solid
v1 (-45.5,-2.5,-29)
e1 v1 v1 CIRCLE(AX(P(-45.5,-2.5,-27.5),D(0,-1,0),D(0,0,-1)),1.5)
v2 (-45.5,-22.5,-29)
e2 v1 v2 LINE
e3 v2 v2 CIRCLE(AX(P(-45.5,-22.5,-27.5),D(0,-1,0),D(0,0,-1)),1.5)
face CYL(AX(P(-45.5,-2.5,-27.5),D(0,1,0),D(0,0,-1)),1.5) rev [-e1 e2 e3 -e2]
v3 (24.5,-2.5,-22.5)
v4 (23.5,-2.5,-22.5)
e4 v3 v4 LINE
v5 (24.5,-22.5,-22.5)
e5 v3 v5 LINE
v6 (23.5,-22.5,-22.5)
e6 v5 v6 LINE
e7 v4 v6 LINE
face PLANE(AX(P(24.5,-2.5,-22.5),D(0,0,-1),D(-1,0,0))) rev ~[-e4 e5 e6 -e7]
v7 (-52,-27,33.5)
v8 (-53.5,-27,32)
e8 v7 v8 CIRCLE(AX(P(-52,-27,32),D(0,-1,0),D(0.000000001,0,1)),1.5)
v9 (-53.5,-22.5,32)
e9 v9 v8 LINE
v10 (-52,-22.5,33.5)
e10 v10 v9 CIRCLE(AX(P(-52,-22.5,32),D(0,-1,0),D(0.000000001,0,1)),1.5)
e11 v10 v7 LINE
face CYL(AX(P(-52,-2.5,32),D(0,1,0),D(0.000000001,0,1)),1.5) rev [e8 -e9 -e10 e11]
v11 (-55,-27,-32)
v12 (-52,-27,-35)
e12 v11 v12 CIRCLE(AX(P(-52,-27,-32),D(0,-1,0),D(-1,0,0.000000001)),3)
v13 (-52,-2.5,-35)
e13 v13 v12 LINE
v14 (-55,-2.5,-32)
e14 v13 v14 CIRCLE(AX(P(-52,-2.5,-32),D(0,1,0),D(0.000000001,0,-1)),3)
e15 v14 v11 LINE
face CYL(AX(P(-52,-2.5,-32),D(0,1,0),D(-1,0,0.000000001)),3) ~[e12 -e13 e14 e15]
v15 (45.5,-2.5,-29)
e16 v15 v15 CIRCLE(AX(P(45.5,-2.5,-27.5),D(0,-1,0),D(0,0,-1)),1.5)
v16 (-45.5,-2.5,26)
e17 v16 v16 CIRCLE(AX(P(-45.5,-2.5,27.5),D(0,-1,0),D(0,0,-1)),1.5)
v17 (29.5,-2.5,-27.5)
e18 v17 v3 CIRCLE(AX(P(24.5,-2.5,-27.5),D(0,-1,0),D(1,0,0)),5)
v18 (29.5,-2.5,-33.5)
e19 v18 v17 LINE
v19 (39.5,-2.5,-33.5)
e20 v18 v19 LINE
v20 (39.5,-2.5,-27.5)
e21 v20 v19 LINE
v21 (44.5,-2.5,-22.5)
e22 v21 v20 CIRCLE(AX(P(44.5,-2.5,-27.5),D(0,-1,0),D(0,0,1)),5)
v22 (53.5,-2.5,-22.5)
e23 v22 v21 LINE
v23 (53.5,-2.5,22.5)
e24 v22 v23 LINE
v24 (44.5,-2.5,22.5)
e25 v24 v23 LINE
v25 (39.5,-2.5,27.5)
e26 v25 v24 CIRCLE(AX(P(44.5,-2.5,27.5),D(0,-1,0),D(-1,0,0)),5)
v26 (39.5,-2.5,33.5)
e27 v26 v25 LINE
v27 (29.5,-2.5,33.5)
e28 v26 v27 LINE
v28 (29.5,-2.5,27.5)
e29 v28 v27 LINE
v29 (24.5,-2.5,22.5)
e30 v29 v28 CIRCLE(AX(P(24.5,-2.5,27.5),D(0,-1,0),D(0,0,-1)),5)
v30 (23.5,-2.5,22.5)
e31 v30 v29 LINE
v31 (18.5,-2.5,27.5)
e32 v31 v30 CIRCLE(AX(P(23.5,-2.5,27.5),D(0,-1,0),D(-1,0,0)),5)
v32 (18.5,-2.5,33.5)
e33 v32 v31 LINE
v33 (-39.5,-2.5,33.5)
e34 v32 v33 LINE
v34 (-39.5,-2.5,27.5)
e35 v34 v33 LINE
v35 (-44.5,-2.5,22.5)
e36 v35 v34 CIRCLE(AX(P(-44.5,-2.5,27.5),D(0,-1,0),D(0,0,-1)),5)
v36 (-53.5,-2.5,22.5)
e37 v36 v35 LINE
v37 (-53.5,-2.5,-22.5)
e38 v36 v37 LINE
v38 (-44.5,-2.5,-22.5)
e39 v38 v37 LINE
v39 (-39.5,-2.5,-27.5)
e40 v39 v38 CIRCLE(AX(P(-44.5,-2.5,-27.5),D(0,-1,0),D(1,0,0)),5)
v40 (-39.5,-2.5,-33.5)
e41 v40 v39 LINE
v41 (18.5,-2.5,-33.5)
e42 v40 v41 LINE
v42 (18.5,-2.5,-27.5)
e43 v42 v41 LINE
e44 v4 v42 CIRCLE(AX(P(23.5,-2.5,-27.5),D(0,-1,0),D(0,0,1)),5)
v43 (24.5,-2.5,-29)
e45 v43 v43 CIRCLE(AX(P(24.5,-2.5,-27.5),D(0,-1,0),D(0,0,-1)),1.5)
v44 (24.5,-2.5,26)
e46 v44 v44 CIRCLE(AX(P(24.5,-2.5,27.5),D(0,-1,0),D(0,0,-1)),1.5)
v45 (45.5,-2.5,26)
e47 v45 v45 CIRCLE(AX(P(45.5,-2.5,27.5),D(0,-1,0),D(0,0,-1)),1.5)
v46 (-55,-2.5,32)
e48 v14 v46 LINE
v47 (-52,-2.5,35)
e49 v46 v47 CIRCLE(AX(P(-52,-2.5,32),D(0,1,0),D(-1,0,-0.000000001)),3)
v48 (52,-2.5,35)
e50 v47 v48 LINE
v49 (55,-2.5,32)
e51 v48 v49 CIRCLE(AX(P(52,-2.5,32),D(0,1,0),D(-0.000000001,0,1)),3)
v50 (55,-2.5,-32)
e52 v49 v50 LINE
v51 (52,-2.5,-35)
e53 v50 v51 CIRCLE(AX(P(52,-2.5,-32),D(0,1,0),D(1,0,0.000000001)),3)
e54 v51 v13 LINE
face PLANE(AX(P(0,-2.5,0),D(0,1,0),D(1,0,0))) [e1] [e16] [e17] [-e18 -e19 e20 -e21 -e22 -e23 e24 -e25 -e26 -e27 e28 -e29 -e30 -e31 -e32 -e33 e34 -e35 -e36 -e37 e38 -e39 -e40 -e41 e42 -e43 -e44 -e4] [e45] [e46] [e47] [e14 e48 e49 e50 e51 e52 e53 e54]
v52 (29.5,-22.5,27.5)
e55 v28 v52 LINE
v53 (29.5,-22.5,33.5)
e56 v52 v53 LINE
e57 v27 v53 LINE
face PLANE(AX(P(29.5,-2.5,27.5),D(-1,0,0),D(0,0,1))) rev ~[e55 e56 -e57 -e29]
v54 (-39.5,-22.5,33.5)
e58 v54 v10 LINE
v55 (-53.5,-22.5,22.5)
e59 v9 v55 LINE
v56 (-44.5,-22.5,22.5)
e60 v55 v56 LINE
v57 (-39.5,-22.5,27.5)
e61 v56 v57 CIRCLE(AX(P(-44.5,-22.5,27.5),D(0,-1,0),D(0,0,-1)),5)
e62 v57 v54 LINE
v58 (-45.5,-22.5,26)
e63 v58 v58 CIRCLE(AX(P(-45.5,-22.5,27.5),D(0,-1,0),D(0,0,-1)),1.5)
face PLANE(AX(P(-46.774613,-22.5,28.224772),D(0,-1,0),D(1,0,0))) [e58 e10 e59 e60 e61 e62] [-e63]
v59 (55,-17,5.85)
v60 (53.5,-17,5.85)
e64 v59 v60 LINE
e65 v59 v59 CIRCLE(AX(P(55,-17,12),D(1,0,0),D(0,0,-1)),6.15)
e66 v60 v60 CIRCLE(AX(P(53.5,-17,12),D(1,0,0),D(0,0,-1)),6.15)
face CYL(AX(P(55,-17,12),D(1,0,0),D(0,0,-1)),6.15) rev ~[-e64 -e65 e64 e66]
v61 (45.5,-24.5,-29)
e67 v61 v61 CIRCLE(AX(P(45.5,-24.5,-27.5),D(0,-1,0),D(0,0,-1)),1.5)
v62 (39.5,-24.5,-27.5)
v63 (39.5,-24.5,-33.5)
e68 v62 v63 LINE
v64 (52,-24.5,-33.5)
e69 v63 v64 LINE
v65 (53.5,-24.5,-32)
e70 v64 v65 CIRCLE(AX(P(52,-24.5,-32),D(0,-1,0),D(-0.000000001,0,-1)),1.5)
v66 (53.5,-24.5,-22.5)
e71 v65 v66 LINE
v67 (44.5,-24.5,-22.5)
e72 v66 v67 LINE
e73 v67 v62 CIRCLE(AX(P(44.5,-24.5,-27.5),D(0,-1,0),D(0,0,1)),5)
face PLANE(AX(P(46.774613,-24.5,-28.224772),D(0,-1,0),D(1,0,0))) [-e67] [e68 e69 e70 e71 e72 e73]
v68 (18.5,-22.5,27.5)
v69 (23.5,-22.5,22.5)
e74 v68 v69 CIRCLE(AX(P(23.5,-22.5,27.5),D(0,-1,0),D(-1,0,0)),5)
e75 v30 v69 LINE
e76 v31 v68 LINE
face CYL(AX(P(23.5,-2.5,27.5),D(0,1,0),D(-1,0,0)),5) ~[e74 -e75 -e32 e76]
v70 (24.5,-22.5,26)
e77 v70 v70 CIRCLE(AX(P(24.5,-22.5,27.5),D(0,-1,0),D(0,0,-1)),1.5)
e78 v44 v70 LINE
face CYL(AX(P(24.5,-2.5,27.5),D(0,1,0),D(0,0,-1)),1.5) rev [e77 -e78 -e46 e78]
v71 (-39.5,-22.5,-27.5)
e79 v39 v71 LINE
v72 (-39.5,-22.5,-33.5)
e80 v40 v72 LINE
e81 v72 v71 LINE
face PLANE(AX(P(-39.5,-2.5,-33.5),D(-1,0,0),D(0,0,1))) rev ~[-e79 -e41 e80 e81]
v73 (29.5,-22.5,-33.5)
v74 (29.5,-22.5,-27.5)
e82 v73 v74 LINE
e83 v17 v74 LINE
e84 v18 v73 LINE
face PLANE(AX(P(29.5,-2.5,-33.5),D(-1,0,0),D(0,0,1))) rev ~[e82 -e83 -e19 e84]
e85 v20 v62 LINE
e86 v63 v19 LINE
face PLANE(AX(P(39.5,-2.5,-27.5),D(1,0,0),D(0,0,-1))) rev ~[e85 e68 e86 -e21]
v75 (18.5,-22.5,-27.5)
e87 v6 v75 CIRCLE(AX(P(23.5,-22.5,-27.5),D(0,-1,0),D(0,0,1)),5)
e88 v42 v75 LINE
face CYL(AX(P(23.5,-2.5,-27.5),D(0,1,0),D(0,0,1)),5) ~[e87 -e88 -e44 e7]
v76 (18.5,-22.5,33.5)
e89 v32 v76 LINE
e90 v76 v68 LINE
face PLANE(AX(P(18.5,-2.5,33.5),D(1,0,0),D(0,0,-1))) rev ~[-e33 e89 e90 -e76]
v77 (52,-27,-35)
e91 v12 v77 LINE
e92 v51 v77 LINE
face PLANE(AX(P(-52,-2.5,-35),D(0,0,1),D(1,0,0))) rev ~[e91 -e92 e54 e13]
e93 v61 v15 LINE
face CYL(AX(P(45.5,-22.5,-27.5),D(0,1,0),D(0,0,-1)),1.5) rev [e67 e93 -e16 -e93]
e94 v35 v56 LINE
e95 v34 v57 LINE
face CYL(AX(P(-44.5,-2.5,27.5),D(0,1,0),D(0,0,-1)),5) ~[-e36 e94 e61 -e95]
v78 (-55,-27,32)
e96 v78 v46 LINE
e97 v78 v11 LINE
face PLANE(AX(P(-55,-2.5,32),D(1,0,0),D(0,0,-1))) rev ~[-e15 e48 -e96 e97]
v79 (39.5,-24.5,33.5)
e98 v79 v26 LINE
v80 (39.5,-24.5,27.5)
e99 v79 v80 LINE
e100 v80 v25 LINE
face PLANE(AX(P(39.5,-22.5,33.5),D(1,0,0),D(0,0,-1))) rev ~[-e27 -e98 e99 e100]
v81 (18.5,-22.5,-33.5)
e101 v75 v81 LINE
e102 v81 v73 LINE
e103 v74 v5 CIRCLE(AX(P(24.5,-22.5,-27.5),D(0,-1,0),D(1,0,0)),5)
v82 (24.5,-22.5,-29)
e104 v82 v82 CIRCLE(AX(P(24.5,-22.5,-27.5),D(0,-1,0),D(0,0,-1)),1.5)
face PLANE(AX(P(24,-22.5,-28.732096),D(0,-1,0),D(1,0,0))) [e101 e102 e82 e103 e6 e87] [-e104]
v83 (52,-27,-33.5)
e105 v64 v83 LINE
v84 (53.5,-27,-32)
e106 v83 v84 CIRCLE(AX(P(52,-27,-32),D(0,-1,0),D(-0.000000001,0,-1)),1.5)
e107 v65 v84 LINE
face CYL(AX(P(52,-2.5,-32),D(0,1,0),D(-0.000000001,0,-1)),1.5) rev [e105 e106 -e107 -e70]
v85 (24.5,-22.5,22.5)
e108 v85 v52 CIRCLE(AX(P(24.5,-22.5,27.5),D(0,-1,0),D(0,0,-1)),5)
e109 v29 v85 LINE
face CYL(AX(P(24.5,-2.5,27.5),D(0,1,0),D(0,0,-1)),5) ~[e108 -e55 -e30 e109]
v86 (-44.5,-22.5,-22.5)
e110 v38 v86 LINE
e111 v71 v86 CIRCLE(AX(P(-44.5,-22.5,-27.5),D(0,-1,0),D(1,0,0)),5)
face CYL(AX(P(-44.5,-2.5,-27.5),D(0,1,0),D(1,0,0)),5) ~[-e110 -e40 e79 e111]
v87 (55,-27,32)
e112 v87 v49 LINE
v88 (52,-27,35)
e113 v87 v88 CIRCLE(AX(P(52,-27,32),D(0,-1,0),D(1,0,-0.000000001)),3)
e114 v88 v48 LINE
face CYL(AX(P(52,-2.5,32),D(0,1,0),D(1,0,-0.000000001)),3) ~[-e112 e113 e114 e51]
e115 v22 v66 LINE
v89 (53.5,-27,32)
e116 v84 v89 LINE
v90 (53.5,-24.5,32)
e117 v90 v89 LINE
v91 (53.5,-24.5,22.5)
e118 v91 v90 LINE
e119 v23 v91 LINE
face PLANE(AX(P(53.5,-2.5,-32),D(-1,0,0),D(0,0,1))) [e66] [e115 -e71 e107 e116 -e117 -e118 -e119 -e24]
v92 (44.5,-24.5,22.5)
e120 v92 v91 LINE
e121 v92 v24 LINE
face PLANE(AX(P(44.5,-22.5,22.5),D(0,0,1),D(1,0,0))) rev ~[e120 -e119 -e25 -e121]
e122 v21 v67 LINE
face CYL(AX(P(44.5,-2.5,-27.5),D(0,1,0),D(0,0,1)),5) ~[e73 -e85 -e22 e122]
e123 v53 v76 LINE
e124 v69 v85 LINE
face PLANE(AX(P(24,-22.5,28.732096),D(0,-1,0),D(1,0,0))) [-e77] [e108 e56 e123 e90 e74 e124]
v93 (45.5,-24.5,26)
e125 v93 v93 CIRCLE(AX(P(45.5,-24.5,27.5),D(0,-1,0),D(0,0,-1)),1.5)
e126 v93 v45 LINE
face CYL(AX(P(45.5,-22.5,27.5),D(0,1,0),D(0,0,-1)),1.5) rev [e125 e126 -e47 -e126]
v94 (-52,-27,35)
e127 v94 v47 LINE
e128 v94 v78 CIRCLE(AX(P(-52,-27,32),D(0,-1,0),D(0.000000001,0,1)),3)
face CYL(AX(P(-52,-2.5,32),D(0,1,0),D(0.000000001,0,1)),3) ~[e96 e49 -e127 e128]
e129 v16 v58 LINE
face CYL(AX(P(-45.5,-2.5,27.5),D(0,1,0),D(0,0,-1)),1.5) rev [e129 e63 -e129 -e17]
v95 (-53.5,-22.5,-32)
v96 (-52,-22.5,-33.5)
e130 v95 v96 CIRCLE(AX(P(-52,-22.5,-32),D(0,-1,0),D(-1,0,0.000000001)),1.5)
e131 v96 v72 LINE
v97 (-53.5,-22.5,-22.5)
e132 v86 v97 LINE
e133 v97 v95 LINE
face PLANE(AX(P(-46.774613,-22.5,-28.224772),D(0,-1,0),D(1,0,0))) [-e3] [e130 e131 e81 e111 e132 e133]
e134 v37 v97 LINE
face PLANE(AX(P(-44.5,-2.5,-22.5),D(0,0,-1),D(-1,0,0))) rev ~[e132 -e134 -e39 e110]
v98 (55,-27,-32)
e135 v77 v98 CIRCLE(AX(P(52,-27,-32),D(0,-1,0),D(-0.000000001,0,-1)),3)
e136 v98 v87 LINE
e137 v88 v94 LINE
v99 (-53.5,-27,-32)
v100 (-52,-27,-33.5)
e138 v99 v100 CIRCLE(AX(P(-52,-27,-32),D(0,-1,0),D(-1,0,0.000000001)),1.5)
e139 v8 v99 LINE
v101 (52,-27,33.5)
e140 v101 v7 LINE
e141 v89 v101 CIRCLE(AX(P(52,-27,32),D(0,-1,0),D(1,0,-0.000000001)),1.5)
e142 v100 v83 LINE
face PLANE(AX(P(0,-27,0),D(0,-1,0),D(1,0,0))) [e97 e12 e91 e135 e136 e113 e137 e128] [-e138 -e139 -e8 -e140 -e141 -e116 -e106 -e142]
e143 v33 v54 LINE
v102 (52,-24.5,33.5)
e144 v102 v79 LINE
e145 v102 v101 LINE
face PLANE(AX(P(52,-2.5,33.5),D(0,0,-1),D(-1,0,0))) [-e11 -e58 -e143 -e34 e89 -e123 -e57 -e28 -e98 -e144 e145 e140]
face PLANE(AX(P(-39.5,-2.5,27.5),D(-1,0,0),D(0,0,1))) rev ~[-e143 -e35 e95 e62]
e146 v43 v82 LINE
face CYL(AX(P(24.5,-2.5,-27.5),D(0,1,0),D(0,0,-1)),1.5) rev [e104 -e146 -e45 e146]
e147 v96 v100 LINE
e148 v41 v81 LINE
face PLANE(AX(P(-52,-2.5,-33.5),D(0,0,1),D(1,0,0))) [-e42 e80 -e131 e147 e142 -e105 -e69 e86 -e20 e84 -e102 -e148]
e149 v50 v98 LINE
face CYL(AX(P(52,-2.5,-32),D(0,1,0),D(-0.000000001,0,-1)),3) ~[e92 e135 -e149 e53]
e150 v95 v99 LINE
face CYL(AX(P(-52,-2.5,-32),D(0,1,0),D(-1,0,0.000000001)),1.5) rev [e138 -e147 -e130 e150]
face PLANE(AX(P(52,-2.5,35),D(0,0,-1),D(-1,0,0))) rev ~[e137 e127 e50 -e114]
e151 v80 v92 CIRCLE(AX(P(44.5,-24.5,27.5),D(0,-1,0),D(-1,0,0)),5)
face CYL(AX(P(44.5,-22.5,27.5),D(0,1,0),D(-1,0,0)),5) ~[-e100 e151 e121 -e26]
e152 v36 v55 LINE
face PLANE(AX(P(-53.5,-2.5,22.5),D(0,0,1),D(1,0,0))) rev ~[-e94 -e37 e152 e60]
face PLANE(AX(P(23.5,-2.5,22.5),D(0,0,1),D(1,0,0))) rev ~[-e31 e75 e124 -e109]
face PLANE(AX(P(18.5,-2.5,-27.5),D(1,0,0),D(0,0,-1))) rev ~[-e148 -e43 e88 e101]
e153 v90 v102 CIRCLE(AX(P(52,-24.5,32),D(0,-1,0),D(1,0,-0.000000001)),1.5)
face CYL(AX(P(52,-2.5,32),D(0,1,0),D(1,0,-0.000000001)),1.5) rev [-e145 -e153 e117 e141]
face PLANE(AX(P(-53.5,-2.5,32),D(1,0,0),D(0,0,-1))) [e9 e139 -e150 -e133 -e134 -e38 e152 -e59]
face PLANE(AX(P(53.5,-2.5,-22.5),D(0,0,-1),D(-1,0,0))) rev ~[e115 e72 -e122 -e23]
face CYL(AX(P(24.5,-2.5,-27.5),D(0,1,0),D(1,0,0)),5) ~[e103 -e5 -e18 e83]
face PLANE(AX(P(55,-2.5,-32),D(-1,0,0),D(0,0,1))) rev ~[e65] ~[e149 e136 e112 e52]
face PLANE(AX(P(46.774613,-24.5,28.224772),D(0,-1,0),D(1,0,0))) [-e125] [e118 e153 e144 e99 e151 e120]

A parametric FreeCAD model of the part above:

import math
import FreeCAD as App
import Part
import Sketcher
from FreeCAD import Vector

doc = App.newDocument("Part")
body = doc.addObject("PartDesign::Body", "Body")

# Sketch on XZ plane
sketch1 = body.newObject("Sketcher::SketchObject", "Sketch")
sketch1.AttachmentSupport = (doc.getObject("XZ_Plane"), [""])
sketch1.MapMode = "FlatFace"
sketch1.addGeometry([
    Part.LineSegment(Vector(-52, 35, 0), Vector(52, 35, 0)),  # 0
    Part.ArcOfCircle(Part.Circle(Vector(52, 32, 0), Vector(0, 0, 1), 3), math.radians(0), math.radians(90)),  # 1
    Part.LineSegment(Vector(55, 32, 0), Vector(55, -32, 0)),  # 2
    Part.ArcOfCircle(Part.Circle(Vector(52, -32, 0), Vector(0, 0, 1), 3), math.radians(-90), math.radians(0)),  # 3
    Part.LineSegment(Vector(52, -35, 0), Vector(-52, -35, 0)),  # 4
    Part.ArcOfCircle(Part.Circle(Vector(-52, -32, 0), Vector(0, 0, 1), 3), math.radians(180), math.radians(270)),  # 5
    Part.LineSegment(Vector(-55, -32, 0), Vector(-55, 32, 0)),  # 6
    Part.ArcOfCircle(Part.Circle(Vector(-52, 32, 0), Vector(0, 0, 1), 3), math.radians(90), math.radians(180)),  # 7
], False)
sketch1.addConstraint([
    Sketcher.Constraint("Tangent", 0, 2, 1, 2),
    Sketcher.Constraint("Tangent", 1, 1, 2, 1),
    Sketcher.Constraint("Tangent", 2, 2, 3, 2),
    Sketcher.Constraint("Tangent", 3, 1, 4, 1),
    Sketcher.Constraint("Tangent", 4, 2, 5, 2),
    Sketcher.Constraint("Tangent", 5, 1, 6, 1),
    Sketcher.Constraint("Tangent", 6, 2, 7, 2),
    Sketcher.Constraint("Tangent", 7, 1, 0, 1),
    Sketcher.Constraint("Horizontal", 0),
    Sketcher.Constraint("Vertical", 2),
    Sketcher.Constraint("Horizontal", 4),
    Sketcher.Constraint("Vertical", 6),
    Sketcher.Constraint("Equal", 1, 3),
    Sketcher.Constraint("Equal", 3, 5),
    Sketcher.Constraint("Equal", 5, 7),
    Sketcher.Constraint("Symmetric", 1, 3, 5, 3, -1, 1),
    Sketcher.Constraint("Radius", 1, 3.0),
    Sketcher.Constraint("DistanceX", 0, 1, 0, 2, 104.0),
    Sketcher.Constraint("DistanceY", 2, 2, 2, 1, 64.0),
])
pad1 = body.newObject("PartDesign::Pad", "Pad")
pad1.Profile = sketch1
pad1.Length = 2.5

# Sketch on XZ plane
sketch2 = body.newObject("Sketcher::SketchObject", "Sketch001")
sketch2.AttachmentSupport = (doc.getObject("XZ_Plane"), [""])
sketch2.MapMode = "FlatFace"
sketch2.AttachmentOffset = App.Placement(Vector(0, 0, 2.5), App.Rotation())
sketch2.addGeometry([
    Part.LineSegment(Vector(-55, 32, 0), Vector(-55, -32, 0)),  # 0
    Part.ArcOfCircle(Part.Circle(Vector(-52, -32, 0), Vector(0, 0, 1), 3), math.radians(180), math.radians(270)),  # 1
    Part.LineSegment(Vector(-52, -35, 0), Vector(52, -35, 0)),  # 2
    Part.ArcOfCircle(Part.Circle(Vector(52, -32, 0), Vector(0, 0, 1), 3), math.radians(-90), math.radians(0)),  # 3
    Part.LineSegment(Vector(55, -32, 0), Vector(55, 32, 0)),  # 4
    Part.ArcOfCircle(Part.Circle(Vector(52, 32, 0), Vector(0, 0, 1), 3), math.radians(0), math.radians(90)),  # 5
    Part.LineSegment(Vector(52, 35, 0), Vector(-52, 35, 0)),  # 6
    Part.ArcOfCircle(Part.Circle(Vector(-52, 32, 0), Vector(0, 0, 1), 3), math.radians(90), math.radians(180)),  # 7
    Part.LineSegment(Vector(-53.5, -32, 0), Vector(-53.5, 32, 0)),  # 8
    Part.ArcOfCircle(Part.Circle(Vector(-52, 32, 0), Vector(0, 0, 1), 1.5), math.radians(90), math.radians(180)),  # 9
    Part.LineSegment(Vector(-52, 33.5, 0), Vector(52, 33.5, 0)),  # 10
    Part.ArcOfCircle(Part.Circle(Vector(52, 32, 0), Vector(0, 0, 1), 1.5), math.radians(0), math.radians(90)),  # 11
    Part.LineSegment(Vector(53.5, 32, 0), Vector(53.5, -32, 0)),  # 12
    Part.ArcOfCircle(Part.Circle(Vector(52, -32, 0), Vector(0, 0, 1), 1.5), math.radians(-90), math.radians(0)),  # 13
    Part.LineSegment(Vector(52, -33.5, 0), Vector(-52, -33.5, 0)),  # 14
    Part.ArcOfCircle(Part.Circle(Vector(-52, -32, 0), Vector(0, 0, 1), 1.5), math.radians(180), math.radians(270)),  # 15
], False)
sketch2.addConstraint([
    Sketcher.Constraint("Tangent", 0, 2, 1, 1),
    Sketcher.Constraint("Tangent", 1, 2, 2, 1),
    Sketcher.Constraint("Tangent", 2, 2, 3, 1),
    Sketcher.Constraint("Tangent", 3, 2, 4, 1),
    Sketcher.Constraint("Tangent", 4, 2, 5, 1),
    Sketcher.Constraint("Tangent", 5, 2, 6, 1),
    Sketcher.Constraint("Tangent", 6, 2, 7, 1),
    Sketcher.Constraint("Tangent", 7, 2, 0, 1),
    Sketcher.Constraint("Tangent", 8, 2, 9, 2),
    Sketcher.Constraint("Tangent", 9, 1, 10, 1),
    Sketcher.Constraint("Tangent", 10, 2, 11, 2),
    Sketcher.Constraint("Tangent", 11, 1, 12, 1),
    Sketcher.Constraint("Tangent", 12, 2, 13, 2),
    Sketcher.Constraint("Tangent", 13, 1, 14, 1),
    Sketcher.Constraint("Tangent", 14, 2, 15, 2),
    Sketcher.Constraint("Tangent", 15, 1, 8, 1),
    Sketcher.Constraint("Vertical", 0),
    Sketcher.Constraint("Horizontal", 2),
    Sketcher.Constraint("Vertical", 4),
    Sketcher.Constraint("Horizontal", 6),
    Sketcher.Constraint("Vertical", 8),
    Sketcher.Constraint("Horizontal", 10),
    Sketcher.Constraint("Vertical", 12),
    Sketcher.Constraint("Horizontal", 14),
    Sketcher.Constraint("Coincident", 9, 3, 7, 3),
    Sketcher.Constraint("Coincident", 11, 3, 5, 3),
    Sketcher.Constraint("Coincident", 13, 3, 3, 3),
    Sketcher.Constraint("Equal", 1, 3),
    Sketcher.Constraint("Equal", 3, 5),
    Sketcher.Constraint("Equal", 5, 7),
    Sketcher.Constraint("Equal", 13, 15),
    Sketcher.Constraint("Symmetric", 1, 3, 5, 3, -1, 1),
    Sketcher.Constraint("Radius", 1, 3.0),
    Sketcher.Constraint("Radius", 9, 1.5),
    Sketcher.Constraint("DistanceX", 2, 1, 2, 2, 104.0),
    Sketcher.Constraint("DistanceY", 0, 2, 0, 1, 64.0),
])
pad2 = body.newObject("PartDesign::Pad", "Pad001")
pad2.Profile = sketch2
pad2.Length = 24.5

# Sketch on XZ plane
sketch3 = body.newObject("Sketcher::SketchObject", "Sketch002")
sketch3.AttachmentSupport = (doc.getObject("XZ_Plane"), [""])
sketch3.MapMode = "FlatFace"
sketch3.addGeometry(Part.Circle(Vector(-20.1, 27.5, 0), Vector(0, 0, 1), 2.5), False)
sketch3.addConstraint([
    Sketcher.Constraint("Diameter", 0, 5.0),
    Sketcher.Constraint("DistanceX", 0, 3, -1, 1, 20.1),
    Sketcher.Constraint("DistanceY", -1, 1, 0, 3, 27.5),
])
pocket1 = body.newObject("PartDesign::Pocket", "Pocket")
pocket1.Profile = sketch3
pocket1.Type = "UpToFirst"
pocket1.Reversed = True

# Sketch on XZ plane
sketch4 = body.newObject("Sketcher::SketchObject", "Sketch003")
sketch4.AttachmentSupport = (doc.getObject("XZ_Plane"), [""])
sketch4.MapMode = "FlatFace"
sketch4.addGeometry(Part.Circle(Vector(-9.6, 27.5, 0), Vector(0, 0, 1), 2.5), False)
sketch4.addConstraint([
    Sketcher.Constraint("Diameter", 0, 5.0),
    Sketcher.Constraint("DistanceX", 0, 3, -1, 1, 9.6),
    Sketcher.Constraint("DistanceY", -1, 1, 0, 3, 27.5),
])
pocket2 = body.newObject("PartDesign::Pocket", "Pocket001")
pocket2.Profile = sketch4
pocket2.Type = "UpToFirst"
pocket2.Reversed = True

# Sketch on XZ plane
sketch5 = body.newObject("Sketcher::SketchObject", "Sketch004")
sketch5.AttachmentSupport = (doc.getObject("XZ_Plane"), [""])
sketch5.MapMode = "FlatFace"
sketch5.addGeometry(Part.Circle(Vector(0.5, 27.5, 0), Vector(0, 0, 1), 2.5), False)
sketch5.addConstraint([
    Sketcher.Constraint("Diameter", 0, 5.0),
    Sketcher.Constraint("DistanceX", -1, 1, 0, 3, 0.5),
    Sketcher.Constraint("DistanceY", -1, 1, 0, 3, 27.5),
])
pocket3 = body.newObject("PartDesign::Pocket", "Pocket002")
pocket3.Profile = sketch5
pocket3.Type = "UpToFirst"
pocket3.Reversed = True

# Sketch on XZ plane
sketch6 = body.newObject("Sketcher::SketchObject", "Sketch005")
sketch6.AttachmentSupport = (doc.getObject("XZ_Plane"), [""])
sketch6.MapMode = "FlatFace"
sketch6.addGeometry(Part.Circle(Vector(10.5, 27.5, 0), Vector(0, 0, 1), 2.5), False)
sketch6.addConstraint([
    Sketcher.Constraint("Diameter", 0, 5.0),
    Sketcher.Constraint("DistanceX", -1, 1, 0, 3, 10.5),
    Sketcher.Constraint("DistanceY", -1, 1, 0, 3, 27.5),
])
pocket4 = body.newObject("PartDesign::Pocket", "Pocket003")
pocket4.Profile = sketch6
pocket4.Type = "UpToFirst"
pocket4.Reversed = True

# Sketch on XZ plane
sketch7 = body.newObject("Sketcher::SketchObject", "Sketch006")
sketch7.AttachmentSupport = (doc.getObject("XZ_Plane"), [""])
sketch7.MapMode = "FlatFace"
sketch7.AttachmentOffset = App.Placement(Vector(0, 0, 2.5), App.Rotation())
sketch7.addGeometry([
    Part.LineSegment(Vector(-39.5, 27.5, 0), Vector(-39.5, 33.5, 0)),  # 0
    Part.LineSegment(Vector(-39.5, 33.5, 0), Vector(-52, 33.5, 0)),  # 1
    Part.ArcOfCircle(Part.Circle(Vector(-52, 32, 0), Vector(0, 0, 1), 1.5), math.radians(90), math.radians(180)),  # 2
    Part.LineSegment(Vector(-53.5, 32, 0), Vector(-53.5, 22.5, 0)),  # 3
    Part.LineSegment(Vector(-53.5, 22.5, 0), Vector(-44.5, 22.5, 0)),  # 4
    Part.ArcOfCircle(Part.Circle(Vector(-44.5, 27.5, 0), Vector(0, 0, 1), 5), math.radians(-90), math.radians(0)),  # 5
    Part.Circle(Vector(-45.5, 27.5, 0), Vector(0, 0, 1), 1.5),  # 6
    Part.LineSegment(Vector(29.5, 33.5, 0), Vector(18.5, 33.5, 0)),  # 7
    Part.LineSegment(Vector(18.5, 33.5, 0), Vector(18.5, 27.5, 0)),  # 8
    Part.ArcOfCircle(Part.Circle(Vector(23.5, 27.5, 0), Vector(0, 0, 1), 5), math.radians(180), math.radians(270)),  # 9
    Part.LineSegment(Vector(23.5, 22.5, 0), Vector(24.5, 22.5, 0)),  # 10
    Part.ArcOfCircle(Part.Circle(Vector(24.5, 27.5, 0), Vector(0, 0, 1), 5), math.radians(-90), math.radians(0)),  # 11
    Part.LineSegment(Vector(29.5, 27.5, 0), Vector(29.5, 33.5, 0)),  # 12
    Part.Circle(Vector(24.5, 27.5, 0), Vector(0, 0, 1), 1.5),  # 13
    Part.LineSegment(Vector(18.5, -27.5, 0), Vector(18.5, -33.5, 0)),  # 14
    Part.LineSegment(Vector(18.5, -33.5, 0), Vector(29.5, -33.5, 0)),  # 15
    Part.LineSegment(Vector(29.5, -33.5, 0), Vector(29.5, -27.5, 0)),  # 16
    Part.ArcOfCircle(Part.Circle(Vector(24.5, -27.5, 0), Vector(0, 0, 1), 5), math.radians(0), math.radians(90)),  # 17
    Part.LineSegment(Vector(24.5, -22.5, 0), Vector(23.5, -22.5, 0)),  # 18
    Part.ArcOfCircle(Part.Circle(Vector(23.5, -27.5, 0), Vector(0, 0, 1), 5), math.radians(90), math.radians(180)),  # 19
    Part.Circle(Vector(24.5, -27.5, 0), Vector(0, 0, 1), 1.5),  # 20
    Part.LineSegment(Vector(-44.5, -22.5, 0), Vector(-53.5, -22.5, 0)),  # 21
    Part.LineSegment(Vector(-53.5, -22.5, 0), Vector(-53.5, -32, 0)),  # 22
    Part.ArcOfCircle(Part.Circle(Vector(-52, -32, 0), Vector(0, 0, 1), 1.5), math.radians(180), math.radians(270)),  # 23
    Part.LineSegment(Vector(-52, -33.5, 0), Vector(-39.5, -33.5, 0)),  # 24
    Part.LineSegment(Vector(-39.5, -33.5, 0), Vector(-39.5, -27.5, 0)),  # 25
    Part.ArcOfCircle(Part.Circle(Vector(-44.5, -27.5, 0), Vector(0, 0, 1), 5), math.radians(0), math.radians(90)),  # 26
    Part.Circle(Vector(-45.5, -27.5, 0), Vector(0, 0, 1), 1.5),  # 27
    Part.LineSegment(Vector(52, 33.5, 0), Vector(39.5, 33.5, 0)),  # 28
    Part.LineSegment(Vector(39.5, 33.5, 0), Vector(39.5, 27.5, 0)),  # 29
    Part.ArcOfCircle(Part.Circle(Vector(44.5, 27.5, 0), Vector(0, 0, 1), 5), math.radians(180), math.radians(270)),  # 30
    Part.LineSegment(Vector(44.5, 22.5, 0), Vector(53.5, 22.5, 0)),  # 31
    Part.LineSegment(Vector(53.5, 22.5, 0), Vector(53.5, 32, 0)),  # 32
    Part.ArcOfCircle(Part.Circle(Vector(52, 32, 0), Vector(0, 0, 1), 1.5), math.radians(0), math.radians(90)),  # 33
    Part.Circle(Vector(45.5, 27.5, 0), Vector(0, 0, 1), 1.5),  # 34
    Part.LineSegment(Vector(53.5, -32, 0), Vector(53.5, -22.5, 0)),  # 35
    Part.LineSegment(Vector(53.5, -22.5, 0), Vector(44.5, -22.5, 0)),  # 36
    Part.ArcOfCircle(Part.Circle(Vector(44.5, -27.5, 0), Vector(0, 0, 1), 5), math.radians(90), math.radians(180)),  # 37
    Part.LineSegment(Vector(39.5, -27.5, 0), Vector(39.5, -33.5, 0)),  # 38
    Part.LineSegment(Vector(39.5, -33.5, 0), Vector(52, -33.5, 0)),  # 39
    Part.ArcOfCircle(Part.Circle(Vector(52, -32, 0), Vector(0, 0, 1), 1.5), math.radians(-90), math.radians(0)),  # 40
    Part.Circle(Vector(45.5, -27.5, 0), Vector(0, 0, 1), 1.5),  # 41
], False)
sketch7.addConstraint([
    Sketcher.Constraint("Coincident", 0, 2, 1, 1),
    Sketcher.Constraint("Tangent", 1, 2, 2, 1),
    Sketcher.Constraint("Tangent", 2, 2, 3, 1),
    Sketcher.Constraint("Coincident", 3, 2, 4, 1),
    Sketcher.Constraint("Tangent", 4, 2, 5, 1),
    Sketcher.Constraint("Tangent", 5, 2, 0, 1),
    Sketcher.Constraint("Coincident", 7, 2, 8, 1),
    Sketcher.Constraint("Tangent", 8, 2, 9, 1),
    Sketcher.Constraint("Tangent", 9, 2, 10, 1),
    Sketcher.Constraint("Tangent", 10, 2, 11, 1),
    Sketcher.Constraint("Tangent", 11, 2, 12, 1),
    Sketcher.Constraint("Coincident", 12, 2, 7, 1),
    Sketcher.Constraint("Coincident", 14, 2, 15, 1),
    Sketcher.Constraint("Coincident", 15, 2, 16, 1),
    Sketcher.Constraint("Tangent", 16, 2, 17, 1),
    Sketcher.Constraint("Tangent", 17, 2, 18, 1),
    Sketcher.Constraint("Tangent", 18, 2, 19, 1),
    Sketcher.Constraint("Tangent", 19, 2, 14, 1),
    Sketcher.Constraint("Coincident", 21, 2, 22, 1),
    Sketcher.Constraint("Tangent", 22, 2, 23, 1),
    Sketcher.Constraint("Tangent", 23, 2, 24, 1),
    Sketcher.Constraint("Coincident", 24, 2, 25, 1),
    Sketcher.Constraint("Tangent", 25, 2, 26, 1),
    Sketcher.Constraint("Tangent", 26, 2, 21, 1),
    Sketcher.Constraint("Coincident", 28, 2, 29, 1),
    Sketcher.Constraint("Tangent", 29, 2, 30, 1),
    Sketcher.Constraint("Tangent", 30, 2, 31, 1),
    Sketcher.Constraint("Coincident", 31, 2, 32, 1),
    Sketcher.Constraint("Tangent", 32, 2, 33, 1),
    Sketcher.Constraint("Tangent", 33, 2, 28, 1),
    Sketcher.Constraint("Coincident", 35, 2, 36, 1),
    Sketcher.Constraint("Tangent", 36, 2, 37, 1),
    Sketcher.Constraint("Tangent", 37, 2, 38, 1),
    Sketcher.Constraint("Coincident", 38, 2, 39, 1),
    Sketcher.Constraint("Tangent", 39, 2, 40, 1),
    Sketcher.Constraint("Tangent", 40, 2, 35, 1),
    Sketcher.Constraint("Vertical", 0),
    Sketcher.Constraint("Horizontal", 1),
    Sketcher.Constraint("Vertical", 3),
    Sketcher.Constraint("Horizontal", 4),
    Sketcher.Constraint("Horizontal", 7),
    Sketcher.Constraint("Vertical", 8),
    Sketcher.Constraint("Horizontal", 10),
    Sketcher.Constraint("Vertical", 12),
    Sketcher.Constraint("Vertical", 14),
    Sketcher.Constraint("Horizontal", 15),
    Sketcher.Constraint("Vertical", 16),
    Sketcher.Constraint("Horizontal", 18),
    Sketcher.Constraint("Horizontal", 21),
    Sketcher.Constraint("Vertical", 22),
    Sketcher.Constraint("Horizontal", 24),
    Sketcher.Constraint("Vertical", 25),
    Sketcher.Constraint("Horizontal", 28),
    Sketcher.Constraint("Vertical", 29),
    Sketcher.Constraint("Horizontal", 31),
    Sketcher.Constraint("Vertical", 32),
    Sketcher.Constraint("Vertical", 35),
    Sketcher.Constraint("Horizontal", 36),
    Sketcher.Constraint("Vertical", 38),
    Sketcher.Constraint("Horizontal", 39),
    Sketcher.Constraint("Coincident", 13, 3, 11, 3),
    Sketcher.Constraint("Coincident", 20, 3, 17, 3),
    Sketcher.Constraint("Equal", 2, 6),
    Sketcher.Constraint("Equal", 5, 9),
    Sketcher.Constraint("Equal", 9, 11),
    Sketcher.Constraint("Equal", 6, 13),
    Sketcher.Constraint("Equal", 11, 17),
    Sketcher.Constraint("Equal", 17, 19),
    Sketcher.Constraint("Equal", 13, 20),
    Sketcher.Constraint("Equal", 20, 23),
    Sketcher.Constraint("Equal", 19, 26),
    Sketcher.Constraint("Equal", 23, 27),
    Sketcher.Constraint("Equal", 26, 30),
    Sketcher.Constraint("Equal", 27, 33),
    Sketcher.Constraint("Equal", 33, 34),
    Sketcher.Constraint("Equal", 30, 37),
    Sketcher.Constraint("Equal", 34, 40),
    Sketcher.Constraint("Equal", 40, 41),
    Sketcher.Constraint("Symmetric", 26, 3, 30, 3, -1, 1),
    Sketcher.Constraint("Symmetric", 23, 3, 33, 3, -1, 1),
    Sketcher.Constraint("Symmetric", 27, 3, 34, 3, -1, 1),
    Sketcher.Constraint("Symmetric", 5, 3, 37, 3, -1, 1),
    Sketcher.Constraint("Symmetric", 2, 3, 40, 3, -1, 1),
    Sketcher.Constraint("Symmetric", 6, 3, 41, 3, -1, 1),
    Sketcher.Constraint("Symmetric", 5, 3, 30, 3, -2),
    Sketcher.Constraint("Symmetric", 2, 3, 33, 3, -2),
    Sketcher.Constraint("Symmetric", 6, 3, 34, 3, -2),
    Sketcher.Constraint("Symmetric", 11, 3, 17, 3, -1),
    Sketcher.Constraint("Symmetric", 7, 2, 14, 2, -1),
    Sketcher.Constraint("Horizontal", 5, 3, 6, 3),
    Sketcher.Constraint("Horizontal", 6, 3, 9, 3),
    Sketcher.Constraint("Horizontal", 1, 2, 7, 2),
    Sketcher.Constraint("Diameter", 6, 3.0),
    Sketcher.Constraint("Radius", 5, 5.0),
    Sketcher.Constraint("DistanceX", 4, 1, 4, 2, 9.0),
    Sketcher.Constraint("DistanceX", 7, 2, 7, 1, 11.0),
    Sketcher.Constraint("DistanceY", 0, 1, 0, 2, 6.0),
    Sketcher.Constraint("DistanceX", 2, 3, -1, 1, 52.0),
    Sketcher.Constraint("DistanceY", -1, 1, 2, 3, 32.0),
    Sketcher.Constraint("DistanceX", 6, 3, 5, 3, 1.0),
    Sketcher.Constraint("DistanceX", 5, 3, 9, 3, 68.0),
])
pad3 = body.newObject("PartDesign::Pad", "Pad002")
pad3.Profile = sketch7
pad3.Length = 20

# Sketch on YZ plane
sketch8 = body.newObject("Sketcher::SketchObject", "Sketch007")
sketch8.AttachmentSupport = (doc.getObject("YZ_Plane"), [""])
sketch8.MapMode = "FlatFace"
sketch8.AttachmentOffset = App.Placement(Vector(0, 0, 55), App.Rotation())
sketch8.addGeometry(Part.Circle(Vector(-17, 12, 0), Vector(0, 0, 1), 6), False)
sketch8.addConstraint([
    Sketcher.Constraint("Diameter", 0, 12.3),
    Sketcher.Constraint("DistanceX", 0, 3, -1, 1, 17.0),
    Sketcher.Constraint("DistanceY", -1, 1, 0, 3, 12.0),
])
pocket5 = body.newObject("PartDesign::Pocket", "Pocket004")
pocket5.Profile = sketch8
pocket5.Type = "UpToFirst"

# Sketch on XZ plane
sketch9 = body.newObject("Sketcher::SketchObject", "Sketch008")
sketch9.AttachmentSupport = (doc.getObject("XZ_Plane"), [""])
sketch9.MapMode = "FlatFace"
sketch9.AttachmentOffset = App.Placement(Vector(0, 0, 22.5), App.Rotation())
sketch9.addGeometry([
    Part.LineSegment(Vector(44.5, 22.5, 0), Vector(53.5, 22.5, 0)),  # 0
    Part.LineSegment(Vector(53.5, 22.5, 0), Vector(53.5, 32, 0)),  # 1
    Part.ArcOfCircle(Part.Circle(Vector(52, 32, 0), Vector(0, 0, 1), 1.5), math.radians(0), math.radians(90)),  # 2
    Part.LineSegment(Vector(52, 33.5, 0), Vector(39.5, 33.5, 0)),  # 3
    Part.LineSegment(Vector(39.5, 33.5, 0), Vector(39.5, 27.5, 0)),  # 4
    Part.ArcOfCircle(Part.Circle(Vector(44.5, 27.5, 0), Vector(0, 0, 1), 5), math.radians(180), math.radians(270)),  # 5
    Part.Circle(Vector(45.5, 27.5, 0), Vector(0, 0, 1), 1.5),  # 6
    Part.LineSegment(Vector(39.5, -27.5, 0), Vector(39.5, -33.5, 0)),  # 7
    Part.LineSegment(Vector(39.5, -33.5, 0), Vector(52, -33.5, 0)),  # 8
    Part.ArcOfCircle(Part.Circle(Vector(52, -32, 0), Vector(0, 0, 1), 1.5), math.radians(-90), math.radians(0)),  # 9
    Part.LineSegment(Vector(53.5, -32, 0), Vector(53.5, -22.5, 0)),  # 10
    Part.LineSegment(Vector(53.5, -22.5, 0), Vector(44.5, -22.5, 0)),  # 11
    Part.ArcOfCircle(Part.Circle(Vector(44.5, -27.5, 0), Vector(0, 0, 1), 5), math.radians(90), math.radians(180)),  # 12
    Part.Circle(Vector(45.5, -27.5, 0), Vector(0, 0, 1), 1.5),  # 13
], False)
sketch9.addConstraint([
    Sketcher.Constraint("Coincident", 0, 2, 1, 1),
    Sketcher.Constraint("Tangent", 1, 2, 2, 1),
    Sketcher.Constraint("Tangent", 2, 2, 3, 1),
    Sketcher.Constraint("Coincident", 3, 2, 4, 1),
    Sketcher.Constraint("Tangent", 4, 2, 5, 1),
    Sketcher.Constraint("Tangent", 5, 2, 0, 1),
    Sketcher.Constraint("Coincident", 7, 2, 8, 1),
    Sketcher.Constraint("Tangent", 8, 2, 9, 1),
    Sketcher.Constraint("Tangent", 9, 2, 10, 1),
    Sketcher.Constraint("Coincident", 10, 2, 11, 1),
    Sketcher.Constraint("Tangent", 11, 2, 12, 1),
    Sketcher.Constraint("Tangent", 12, 2, 7, 1),
    Sketcher.Constraint("Horizontal", 0),
    Sketcher.Constraint("Vertical", 1),
    Sketcher.Constraint("Horizontal", 3),
    Sketcher.Constraint("Vertical", 4),
    Sketcher.Constraint("Vertical", 7),
    Sketcher.Constraint("Horizontal", 8),
    Sketcher.Constraint("Vertical", 10),
    Sketcher.Constraint("Horizontal", 11),
    Sketcher.Constraint("Equal", 2, 6),
    Sketcher.Constraint("Equal", 6, 9),
    Sketcher.Constraint("Equal", 5, 12),
    Sketcher.Constraint("Equal", 9, 13),
    Sketcher.Constraint("Symmetric", 2, 3, 9, 3, -1),
    Sketcher.Constraint("Symmetric", 5, 3, 12, 3, -1),
    Sketcher.Constraint("Symmetric", 6, 3, 13, 3, -1),
    Sketcher.Constraint("Horizontal", 5, 3, 6, 3),
    Sketcher.Constraint("Diameter", 6, 3.0),
    Sketcher.Constraint("Radius", 5, 5.0),
    Sketcher.Constraint("DistanceX", 0, 1, 0, 2, 9.0),
    Sketcher.Constraint("DistanceY", 4, 2, 4, 1, 6.0),
    Sketcher.Constraint("DistanceX", -1, 1, 2, 3, 52.0),
    Sketcher.Constraint("DistanceY", -1, 1, 2, 3, 32.0),
    Sketcher.Constraint("DistanceX", 5, 3, 6, 3, 1.0),
])
pad4 = body.newObject("PartDesign::Pad", "Pad003")
pad4.Profile = sketch9
pad4.Length = 2

# Sketch on XZ plane
sketch10 = body.newObject("Sketcher::SketchObject", "Sketch009")
sketch10.AttachmentSupport = (doc.getObject("XZ_Plane"), [""])
sketch10.MapMode = "FlatFace"
sketch10.addGeometry([
    Part.LineSegment(Vector(-52, 35, 0), Vector(52, 35, 0)),  # 0
    Part.ArcOfCircle(Part.Circle(Vector(52, 32, 0), Vector(0, 0, 1), 3), math.radians(0), math.radians(90)),  # 1
    Part.LineSegment(Vector(55, 32, 0), Vector(55, -32, 0)),  # 2
    Part.ArcOfCircle(Part.Circle(Vector(52, -32, 0), Vector(0, 0, 1), 3), math.radians(-90), math.radians(0)),  # 3
    Part.LineSegment(Vector(52, -35, 0), Vector(-52, -35, 0)),  # 4
    Part.ArcOfCircle(Part.Circle(Vector(-52, -32, 0), Vector(0, 0, 1), 3), math.radians(180), math.radians(270)),  # 5
    Part.LineSegment(Vector(-55, -32, 0), Vector(-55, 32, 0)),  # 6
    Part.ArcOfCircle(Part.Circle(Vector(-52, 32, 0), Vector(0, 0, 1), 3), math.radians(90), math.radians(180)),  # 7
], False)
sketch10.addConstraint([
    Sketcher.Constraint("Tangent", 0, 2, 1, 2),
    Sketcher.Constraint("Tangent", 1, 1, 2, 1),
    Sketcher.Constraint("Tangent", 2, 2, 3, 2),
    Sketcher.Constraint("Tangent", 3, 1, 4, 1),
    Sketcher.Constraint("Tangent", 4, 2, 5, 2),
    Sketcher.Constraint("Tangent", 5, 1, 6, 1),
    Sketcher.Constraint("Tangent", 6, 2, 7, 2),
    Sketcher.Constraint("Tangent", 7, 1, 0, 1),
    Sketcher.Constraint("Horizontal", 0),
    Sketcher.Constraint("Vertical", 2),
    Sketcher.Constraint("Horizontal", 4),
    Sketcher.Constraint("Vertical", 6),
    Sketcher.Constraint("Equal", 1, 3),
    Sketcher.Constraint("Equal", 3, 5),
    Sketcher.Constraint("Equal", 5, 7),
    Sketcher.Constraint("Symmetric", 1, 3, 5, 3, -1, 1),
    Sketcher.Constraint("Radius", 1, 3.0),
    Sketcher.Constraint("DistanceX", 0, 1, 0, 2, 104.0),
    Sketcher.Constraint("DistanceY", 2, 2, 2, 1, 64.0),
])
pocket6 = body.newObject("PartDesign::Pocket", "Pocket005")
pocket6.Profile = sketch10
pocket6.Length = 2.5
pocket6.Reversed = True

doc.recompute()
